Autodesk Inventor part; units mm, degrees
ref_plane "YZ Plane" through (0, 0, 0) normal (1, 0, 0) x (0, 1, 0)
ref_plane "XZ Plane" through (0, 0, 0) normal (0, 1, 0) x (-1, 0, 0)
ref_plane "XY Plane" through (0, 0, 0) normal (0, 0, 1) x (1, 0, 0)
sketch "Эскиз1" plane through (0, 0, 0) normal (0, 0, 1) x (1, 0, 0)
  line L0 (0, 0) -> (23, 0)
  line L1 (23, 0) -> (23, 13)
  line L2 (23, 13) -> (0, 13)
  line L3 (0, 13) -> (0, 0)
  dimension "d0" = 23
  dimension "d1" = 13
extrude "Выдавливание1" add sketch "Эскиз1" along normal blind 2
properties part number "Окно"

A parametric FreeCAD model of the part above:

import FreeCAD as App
import Part
import Sketcher

doc = App.newDocument("Part")
body = doc.addObject("PartDesign::Body", "Body")

sketch1 = body.newObject("Sketcher::SketchObject", "Sketch")
sketch1.AttachmentSupport = (doc.getObject("XY_Plane"), [""])
sketch1.MapMode = "FlatFace"
sketch1.addGeometry([
    Part.LineSegment(App.Vector(0, 13, 0), App.Vector(0, 0, 0)),
    Part.LineSegment(App.Vector(0, 0, 0), App.Vector(23, 0, 0)),
    Part.LineSegment(App.Vector(23, 0, 0), App.Vector(23, 13, 0)),
    Part.LineSegment(App.Vector(23, 13, 0), App.Vector(0, 13, 0)),
], False)
sketch1.addConstraint([
    Sketcher.Constraint("Coincident", 0, 2, 1, 1),
    Sketcher.Constraint("Coincident", 1, 2, 2, 1),
    Sketcher.Constraint("Coincident", 2, 2, 3, 1),
    Sketcher.Constraint("Coincident", 3, 2, 0, 1),
    Sketcher.Constraint("Vertical", 0),
    Sketcher.Constraint("Horizontal", 1),
    Sketcher.Constraint("Vertical", 2),
    Sketcher.Constraint("Horizontal", 3),
    Sketcher.Constraint("Coincident", 0, 2, -1, 1),
    Sketcher.Constraint("DistanceX", 1, 1, 1, 2, 23.0),
    Sketcher.Constraint("DistanceY", 0, 2, 0, 1, 13.0),
])
pad1 = body.newObject("PartDesign::Pad", "Pad")
pad1.Profile = sketch1
pad1.Length = 2

doc.recompute()
